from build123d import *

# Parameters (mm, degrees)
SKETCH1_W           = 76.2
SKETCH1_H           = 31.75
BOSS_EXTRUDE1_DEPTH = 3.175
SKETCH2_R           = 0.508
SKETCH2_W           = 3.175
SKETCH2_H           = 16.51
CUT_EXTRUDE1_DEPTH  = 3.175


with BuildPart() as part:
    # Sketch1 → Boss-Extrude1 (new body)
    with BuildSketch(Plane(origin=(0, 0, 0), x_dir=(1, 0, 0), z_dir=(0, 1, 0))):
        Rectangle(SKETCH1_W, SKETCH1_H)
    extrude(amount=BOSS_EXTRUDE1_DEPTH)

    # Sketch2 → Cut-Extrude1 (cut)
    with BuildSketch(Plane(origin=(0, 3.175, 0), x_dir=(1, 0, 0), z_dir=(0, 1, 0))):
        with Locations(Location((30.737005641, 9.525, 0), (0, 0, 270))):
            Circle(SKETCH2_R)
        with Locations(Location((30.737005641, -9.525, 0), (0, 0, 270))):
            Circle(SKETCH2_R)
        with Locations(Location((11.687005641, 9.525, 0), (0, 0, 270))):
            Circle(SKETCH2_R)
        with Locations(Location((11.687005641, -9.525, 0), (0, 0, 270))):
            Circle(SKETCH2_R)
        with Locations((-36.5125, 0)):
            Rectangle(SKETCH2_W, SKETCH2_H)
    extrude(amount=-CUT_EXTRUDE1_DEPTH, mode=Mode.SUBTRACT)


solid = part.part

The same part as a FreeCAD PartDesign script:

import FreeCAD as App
import Part
import Sketcher
from FreeCAD import Vector
Q = App.Units.Quantity

doc = App.newDocument("Part")
body = doc.addObject("PartDesign::Body", "Body")

sketch1 = body.newObject("Sketcher::SketchObject", "Sketch")
sketch1.AttachmentSupport = (doc.getObject("XZ_Plane"), [""])
sketch1.MapMode = "FlatFace"
sketch1.addGeometry(Part.LineSegment(Vector(-38, -16, 0), Vector(-38, 16, 0)), False)
sketch1.addGeometry(Part.LineSegment(Vector(-38, 16, 0), Vector(38, 16, 0)), False)
sketch1.addGeometry(Part.LineSegment(Vector(38, 16, 0), Vector(38, -16, 0)), False)
sketch1.addGeometry(Part.LineSegment(Vector(38, -16, 0), Vector(-38, -16, 0)), False)
sketch1.addConstraint(Sketcher.Constraint("Coincident", 0, 2, 1, 1))
sketch1.addConstraint(Sketcher.Constraint("Coincident", 1, 2, 2, 1))
sketch1.addConstraint(Sketcher.Constraint("Coincident", 2, 2, 3, 1))
sketch1.addConstraint(Sketcher.Constraint("Coincident", 3, 2, 0, 1))
sketch1.addConstraint(Sketcher.Constraint("Vertical", 0))
sketch1.addConstraint(Sketcher.Constraint("Horizontal", 1))
sketch1.addConstraint(Sketcher.Constraint("Vertical", 2))
sketch1.addConstraint(Sketcher.Constraint("Horizontal", 3))
sketch1.addConstraint(Sketcher.Constraint("Symmetric", 0, 2, 2, 2, -1, 1))
sketch1.addConstraint(Sketcher.Constraint("DistanceX", 1, 1, 1, 2, Q("3 in")))
sketch1.addConstraint(Sketcher.Constraint("DistanceY", 0, 1, 0, 2, Q("1.25 in")))
pad1 = body.newObject("PartDesign::Pad", "Pad")
pad1.Profile = sketch1
pad1.Length = Q("0.125 in")
pad1.Reversed = True

sketch2 = body.newObject("Sketcher::SketchObject", "Sketch001")
sketch2.AttachmentSupport = (doc.getObject("XZ_Plane"), [""])
sketch2.MapMode = "FlatFace"
sketch2.AttachmentOffset = App.Placement(Vector(0, 0, -0.125 * 25.4), App.Rotation())
sketch2.addGeometry(Part.Circle(Vector(30.7, -9.5, 0), Vector(0, 0, 1), 0.5), False)
sketch2.addGeometry(Part.Circle(Vector(30.7, 9.5, 0), Vector(0, 0, 1), 0.5), False)
sketch2.addGeometry(Part.Circle(Vector(11.7, -9.5, 0), Vector(0, 0, 1), 0.5), False)
sketch2.addGeometry(Part.Circle(Vector(11.7, 9.5, 0), Vector(0, 0, 1), 0.5), False)
sketch2.addGeometry(Part.LineSegment(Vector(-38.1, -8.3, 0), Vector(-38.1, 8.3, 0)), False)
sketch2.addGeometry(Part.LineSegment(Vector(-38.1, 8.3, 0), Vector(-34.9, 8.3, 0)), False)
sketch2.addGeometry(Part.LineSegment(Vector(-34.9, 8.3, 0), Vector(-34.9, -8.3, 0)), False)
sketch2.addGeometry(Part.LineSegment(Vector(-34.9, -8.3, 0), Vector(-38.1, -8.3, 0)), False)
sketch2.addConstraint(Sketcher.Constraint("Coincident", 4, 2, 5, 1))
sketch2.addConstraint(Sketcher.Constraint("Coincident", 5, 2, 6, 1))
sketch2.addConstraint(Sketcher.Constraint("Coincident", 6, 2, 7, 1))
sketch2.addConstraint(Sketcher.Constraint("Coincident", 7, 2, 4, 1))
sketch2.addConstraint(Sketcher.Constraint("Vertical", 4))
sketch2.addConstraint(Sketcher.Constraint("Horizontal", 5))
sketch2.addConstraint(Sketcher.Constraint("Vertical", 6))
sketch2.addConstraint(Sketcher.Constraint("Horizontal", 7))
sketch2.addConstraint(Sketcher.Constraint("Equal", 0, 1))
sketch2.addConstraint(Sketcher.Constraint("Equal", 1, 2))
sketch2.addConstraint(Sketcher.Constraint("Equal", 2, 3))
sketch2.addConstraint(Sketcher.Constraint("Symmetric", 0, 3, 1, 3, -1))
sketch2.addConstraint(Sketcher.Constraint("Symmetric", 2, 3, 3, 3, -1))
sketch2.addConstraint(Sketcher.Constraint("Horizontal", 0, 3, 2, 3))
sketch2.addConstraint(Sketcher.Constraint("Diameter", 0, Q("0.04 in")))
sketch2.addConstraint(Sketcher.Constraint("DistanceY", 4, 1, 4, 2, Q("0.65 in")))
sketch2.addConstraint(Sketcher.Constraint("DistanceX", 4, 2, -1, 1, Q("1.5 in")))
sketch2.addConstraint(Sketcher.Constraint("DistanceY", 2, 3, 4, 2, Q("0.7 in")))
sketch2.addConstraint(Sketcher.Constraint("DistanceY", 6, 2, 3, 3, Q("0.7 in")))
sketch2.addConstraint(Sketcher.Constraint("DistanceX", 5, 1, 5, 2, Q("0.125 in")))
sketch2.addConstraint(Sketcher.Constraint("DistanceX", 2, 3, 0, 3, Q("0.75 in")))
sketch2.addConstraint(Sketcher.Constraint("DistanceX", -1, 1, 0, 3, Q("30.737006 mm")))
pocket1 = body.newObject("PartDesign::Pocket", "Pocket")
pocket1.Profile = sketch2
pocket1.Length = Q("0.125 in")
pocket1.Reversed = True

doc.recompute()
